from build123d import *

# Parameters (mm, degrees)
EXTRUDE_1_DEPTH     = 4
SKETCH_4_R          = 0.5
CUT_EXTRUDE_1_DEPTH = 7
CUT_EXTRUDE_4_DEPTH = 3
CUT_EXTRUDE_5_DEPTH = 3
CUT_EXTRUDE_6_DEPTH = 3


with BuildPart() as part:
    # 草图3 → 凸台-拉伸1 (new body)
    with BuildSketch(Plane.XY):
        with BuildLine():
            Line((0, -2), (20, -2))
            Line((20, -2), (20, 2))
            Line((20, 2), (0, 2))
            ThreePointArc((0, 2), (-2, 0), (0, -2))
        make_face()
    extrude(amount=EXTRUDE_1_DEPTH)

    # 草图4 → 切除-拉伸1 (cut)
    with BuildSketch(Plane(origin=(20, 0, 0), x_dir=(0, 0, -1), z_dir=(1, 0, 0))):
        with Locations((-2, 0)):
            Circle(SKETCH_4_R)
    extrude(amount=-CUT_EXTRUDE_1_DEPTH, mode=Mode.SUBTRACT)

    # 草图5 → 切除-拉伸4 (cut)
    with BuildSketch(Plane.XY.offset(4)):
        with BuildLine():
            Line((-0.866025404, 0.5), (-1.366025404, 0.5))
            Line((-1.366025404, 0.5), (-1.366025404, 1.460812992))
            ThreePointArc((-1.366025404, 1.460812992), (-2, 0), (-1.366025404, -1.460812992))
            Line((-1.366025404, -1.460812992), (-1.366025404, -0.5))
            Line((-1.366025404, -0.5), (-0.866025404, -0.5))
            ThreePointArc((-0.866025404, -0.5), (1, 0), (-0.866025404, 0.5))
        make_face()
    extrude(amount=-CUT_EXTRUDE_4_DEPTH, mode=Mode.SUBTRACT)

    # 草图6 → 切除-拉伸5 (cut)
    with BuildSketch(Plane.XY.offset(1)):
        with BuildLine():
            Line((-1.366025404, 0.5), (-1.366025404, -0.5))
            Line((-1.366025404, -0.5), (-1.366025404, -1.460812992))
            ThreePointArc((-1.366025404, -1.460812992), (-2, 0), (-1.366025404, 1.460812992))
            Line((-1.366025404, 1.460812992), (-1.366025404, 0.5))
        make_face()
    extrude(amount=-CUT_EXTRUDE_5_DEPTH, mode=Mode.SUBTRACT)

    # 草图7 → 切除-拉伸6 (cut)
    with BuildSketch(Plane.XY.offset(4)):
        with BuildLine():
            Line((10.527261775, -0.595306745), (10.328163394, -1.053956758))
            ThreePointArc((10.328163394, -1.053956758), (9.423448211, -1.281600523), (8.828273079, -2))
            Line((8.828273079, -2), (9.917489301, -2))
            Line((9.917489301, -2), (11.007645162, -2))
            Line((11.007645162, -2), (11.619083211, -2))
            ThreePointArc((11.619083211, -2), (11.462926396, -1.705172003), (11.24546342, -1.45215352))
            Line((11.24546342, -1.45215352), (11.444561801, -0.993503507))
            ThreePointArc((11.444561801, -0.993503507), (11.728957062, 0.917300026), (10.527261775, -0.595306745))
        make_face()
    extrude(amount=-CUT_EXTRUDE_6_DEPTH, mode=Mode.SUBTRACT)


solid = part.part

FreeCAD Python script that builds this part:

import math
import FreeCAD as App
import Part
import Sketcher
from FreeCAD import Vector
Q = App.Units.Quantity

doc = App.newDocument("Part")
body = doc.addObject("PartDesign::Body", "Body")

sketch1 = body.newObject("Sketcher::SketchObject", "Sketch")
sketch1.AttachmentSupport = (doc.getObject("XY_Plane"), [""])
sketch1.MapMode = "FlatFace"
sketch1.addGeometry(Part.LineSegment(Vector(0, -2, 0), Vector(20, -2, 0)), False)
sketch1.addGeometry(Part.LineSegment(Vector(20, -2, 0), Vector(20, 2, 0)), False)
sketch1.addGeometry(Part.LineSegment(Vector(20, 2, 0), Vector(0, 2, 0)), False)
sketch1.addGeometry(Part.ArcOfCircle(Part.Circle(Vector(0, 0, 0), Vector(0, 0, 1), 2), math.radians(90), math.radians(270)), False)
sketch1.addConstraint(Sketcher.Constraint("Coincident", 0, 2, 1, 1))
sketch1.addConstraint(Sketcher.Constraint("Coincident", 1, 2, 2, 1))
sketch1.addConstraint(Sketcher.Constraint("Tangent", 2, 2, 3, 1))
sketch1.addConstraint(Sketcher.Constraint("Tangent", 3, 2, 0, 1))
sketch1.addConstraint(Sketcher.Constraint("Horizontal", 0))
sketch1.addConstraint(Sketcher.Constraint("Vertical", 1))
sketch1.addConstraint(Sketcher.Constraint("Horizontal", 2))
sketch1.addConstraint(Sketcher.Constraint("Coincident", 3, 3, -1, 1))
sketch1.addConstraint(Sketcher.Constraint("Radius", 3, Q("2 mm")))
sketch1.addConstraint(Sketcher.Constraint("DistanceX", 0, 1, 0, 2, Q("20 mm")))
pad1 = body.newObject("PartDesign::Pad", "Pad")
pad1.Profile = sketch1
pad1.Length = 4

sketch2 = body.newObject("Sketcher::SketchObject", "Sketch001")
sketch2.AttachmentSupport = (doc.getObject("YZ_Plane"), [""])
sketch2.MapMode = "FlatFace"
sketch2.AttachmentOffset = App.Placement(Vector(0, 0, 20), App.Rotation())
sketch2.addGeometry(Part.Circle(Vector(0, 2, 0), Vector(0, 0, 1), 0.5), False)
sketch2.addConstraint(Sketcher.Constraint("PointOnObject", 0, 3, -2))
sketch2.addConstraint(Sketcher.Constraint("Diameter", 0, Q("1 mm")))
sketch2.addConstraint(Sketcher.Constraint("DistanceY", -1, 1, 0, 3, Q("2 mm")))
pocket1 = body.newObject("PartDesign::Pocket", "Pocket")
pocket1.Profile = sketch2
pocket1.Length = 7

sketch3 = body.newObject("Sketcher::SketchObject", "Sketch002")
sketch3.AttachmentSupport = (doc.getObject("XY_Plane"), [""])
sketch3.MapMode = "FlatFace"
sketch3.AttachmentOffset = App.Placement(Vector(0, 0, 4), App.Rotation())
sketch3.addGeometry(Part.LineSegment(Vector(-0.866025, 0.5, 0), Vector(-1.366025, 0.5, 0)), False)
sketch3.addGeometry(Part.LineSegment(Vector(-1.366025, 0.5, 0), Vector(-1.366025, 1.460813, 0)), False)
sketch3.addGeometry(Part.ArcOfCircle(Part.Circle(Vector(0, 0, 0), Vector(0, 0, 1), 2), math.radians(133.079517), math.radians(226.920483)), False)
sketch3.addGeometry(Part.LineSegment(Vector(-1.366025, -1.460813, 0), Vector(-1.366025, -0.5, 0)), False)
sketch3.addGeometry(Part.LineSegment(Vector(-1.366025, -0.5, 0), Vector(-0.866025, -0.5, 0)), False)
sketch3.addGeometry(Part.ArcOfCircle(Part.Circle(Vector(0, 0, 0), Vector(0, 0, 1), 1), math.radians(-150), math.radians(150)), False)
sketch3.addConstraint(Sketcher.Constraint("Coincident", 0, 2, 1, 1))
sketch3.addConstraint(Sketcher.Constraint("Coincident", 1, 2, 2, 1))
sketch3.addConstraint(Sketcher.Constraint("Coincident", 2, 2, 3, 1))
sketch3.addConstraint(Sketcher.Constraint("Coincident", 3, 2, 4, 1))
sketch3.addConstraint(Sketcher.Constraint("Coincident", 4, 2, 5, 1))
sketch3.addConstraint(Sketcher.Constraint("Coincident", 5, 2, 0, 1))
sketch3.addConstraint(Sketcher.Constraint("Horizontal", 0))
sketch3.addConstraint(Sketcher.Constraint("Vertical", 1))
sketch3.addConstraint(Sketcher.Constraint("Vertical", 3))
sketch3.addConstraint(Sketcher.Constraint("Horizontal", 4))
sketch3.addConstraint(Sketcher.Constraint("Coincident", 2, 3, -1, 1))
sketch3.addConstraint(Sketcher.Constraint("Coincident", 5, 3, -1, 1))
sketch3.addConstraint(Sketcher.Constraint("Symmetric", 0, 2, 3, 2, -1))
sketch3.addConstraint(Sketcher.Constraint("Radius", 2, Q("2 mm")))
sketch3.addConstraint(Sketcher.Constraint("Radius", 5, Q("1 mm")))
sketch3.addConstraint(Sketcher.Constraint("DistanceX", 0, 2, 0, 1, Q("0.5 mm")))
sketch3.addConstraint(Sketcher.Constraint("DistanceY", 3, 2, 0, 2, Q("1 mm")))
pocket2 = body.newObject("PartDesign::Pocket", "Pocket001")
pocket2.Profile = sketch3
pocket2.Length = 3

sketch4 = body.newObject("Sketcher::SketchObject", "Sketch003")
sketch4.AttachmentSupport = (doc.getObject("XY_Plane"), [""])
sketch4.MapMode = "FlatFace"
sketch4.AttachmentOffset = App.Placement(Vector(0, 0, 1), App.Rotation())
sketch4.addGeometry(Part.ArcOfCircle(Part.Circle(Vector(0, 0, 0), Vector(0, 0, 1), 2), math.radians(133.079517), math.radians(226.920483)), False)
sketch4.addGeometry(Part.LineSegment(Vector(-1.366025, -1.460813, 0), Vector(-1.366025, 1.460813, 0)), False)
sketch4.addConstraint(Sketcher.Constraint("Coincident", 0, 1, 1, 2))
sketch4.addConstraint(Sketcher.Constraint("Coincident", 1, 1, 0, 2))
sketch4.addConstraint(Sketcher.Constraint("Vertical", 1))
sketch4.addConstraint(Sketcher.Constraint("Coincident", 0, 3, -1, 1))
sketch4.addConstraint(Sketcher.Constraint("Radius", 0, Q("2 mm")))
sketch4.addConstraint(Sketcher.Constraint("DistanceY", 1, 1, 1, 2, Q("2.921626 mm")))
pocket3 = body.newObject("PartDesign::Pocket", "Pocket002")
pocket3.Profile = sketch4
pocket3.Length = 3

sketch5 = body.newObject("Sketcher::SketchObject", "Sketch004")
sketch5.AttachmentSupport = (doc.getObject("XY_Plane"), [""])
sketch5.MapMode = "FlatFace"
sketch5.AttachmentOffset = App.Placement(Vector(0, 0, 4), App.Rotation())
sketch5.addGeometry(Part.LineSegment(Vector(10.527262, -0.595307, 0), Vector(10.328163, -1.053957, 0)), False)
sketch5.addGeometry(Part.ArcOfCircle(Part.Circle(Vector(10.223678, -2.550313, 0), Vector(0, 0, 1), 1.5), math.radians(86.005723), math.radians(158.476949)), False)
sketch5.addGeometry(Part.LineSegment(Vector(8.828273, -2, 0), Vector(11.619083, -2, 0)), False)
sketch5.addGeometry(Part.ArcOfCircle(Part.Circle(Vector(10.223678, -2.550313, 0), Vector(0, 0, 1), 1.5), math.radians(21.523051), math.radians(47.063282)), False)
sketch5.addGeometry(Part.LineSegment(Vector(11.245463, -1.452154, 0), Vector(11.444562, -0.993504, 0)), False)
sketch5.addGeometry(Part.ArcOfCircle(Part.Circle(Vector(11.33076, 0, 0), Vector(0, 0, 1), 1), math.radians(-83.465498), math.radians(216.534502)), False)
sketch5.addConstraint(Sketcher.Constraint("Coincident", 0, 2, 1, 1))
sketch5.addConstraint(Sketcher.Constraint("Coincident", 1, 2, 2, 1))
sketch5.addConstraint(Sketcher.Constraint("Coincident", 2, 2, 3, 1))
sketch5.addConstraint(Sketcher.Constraint("Coincident", 3, 2, 4, 1))
sketch5.addConstraint(Sketcher.Constraint("Coincident", 4, 2, 5, 1))
sketch5.addConstraint(Sketcher.Constraint("Coincident", 5, 2, 0, 1))
sketch5.addConstraint(Sketcher.Constraint("Horizontal", 2))
sketch5.addConstraint(Sketcher.Constraint("Coincident", 3, 3, 1, 3))
sketch5.addConstraint(Sketcher.Constraint("Equal", 1, 3))
sketch5.addConstraint(Sketcher.Constraint("PointOnObject", 5, 3, -1))
sketch5.addConstraint(Sketcher.Constraint("Parallel", 0, 4))
sketch5.addConstraint(Sketcher.Constraint("Equal", 0, 4))
sketch5.addConstraint(Sketcher.Constraint("Radius", 5, Q("1 mm")))
sketch5.addConstraint(Sketcher.Constraint("Radius", 1, Q("1.5 mm")))
sketch5.addConstraint(Sketcher.Constraint("DistanceY", 1, 2, -1, 1, Q("2 mm")))
sketch5.addConstraint(Sketcher.Constraint("Distance", 0, Q("0.5 mm")))
sketch5.addConstraint(Sketcher.Constraint("DistanceX", 2, 1, 2, 2, Q("2.79081 mm")))
sketch5.addConstraint(Sketcher.Constraint("DistanceX", 0, 2, 3, 2, Q("0.9173 mm")))
sketch5.addConstraint(Sketcher.Constraint("DistanceX", 3, 2, 4, 2, Q("0.199098 mm")))
sketch5.addConstraint(Sketcher.Constraint("DistanceX", -1, 1, 1, 3, Q("10.223678 mm")))
pocket4 = body.newObject("PartDesign::Pocket", "Pocket003")
pocket4.Profile = sketch5
pocket4.Length = 3

doc.recompute()
